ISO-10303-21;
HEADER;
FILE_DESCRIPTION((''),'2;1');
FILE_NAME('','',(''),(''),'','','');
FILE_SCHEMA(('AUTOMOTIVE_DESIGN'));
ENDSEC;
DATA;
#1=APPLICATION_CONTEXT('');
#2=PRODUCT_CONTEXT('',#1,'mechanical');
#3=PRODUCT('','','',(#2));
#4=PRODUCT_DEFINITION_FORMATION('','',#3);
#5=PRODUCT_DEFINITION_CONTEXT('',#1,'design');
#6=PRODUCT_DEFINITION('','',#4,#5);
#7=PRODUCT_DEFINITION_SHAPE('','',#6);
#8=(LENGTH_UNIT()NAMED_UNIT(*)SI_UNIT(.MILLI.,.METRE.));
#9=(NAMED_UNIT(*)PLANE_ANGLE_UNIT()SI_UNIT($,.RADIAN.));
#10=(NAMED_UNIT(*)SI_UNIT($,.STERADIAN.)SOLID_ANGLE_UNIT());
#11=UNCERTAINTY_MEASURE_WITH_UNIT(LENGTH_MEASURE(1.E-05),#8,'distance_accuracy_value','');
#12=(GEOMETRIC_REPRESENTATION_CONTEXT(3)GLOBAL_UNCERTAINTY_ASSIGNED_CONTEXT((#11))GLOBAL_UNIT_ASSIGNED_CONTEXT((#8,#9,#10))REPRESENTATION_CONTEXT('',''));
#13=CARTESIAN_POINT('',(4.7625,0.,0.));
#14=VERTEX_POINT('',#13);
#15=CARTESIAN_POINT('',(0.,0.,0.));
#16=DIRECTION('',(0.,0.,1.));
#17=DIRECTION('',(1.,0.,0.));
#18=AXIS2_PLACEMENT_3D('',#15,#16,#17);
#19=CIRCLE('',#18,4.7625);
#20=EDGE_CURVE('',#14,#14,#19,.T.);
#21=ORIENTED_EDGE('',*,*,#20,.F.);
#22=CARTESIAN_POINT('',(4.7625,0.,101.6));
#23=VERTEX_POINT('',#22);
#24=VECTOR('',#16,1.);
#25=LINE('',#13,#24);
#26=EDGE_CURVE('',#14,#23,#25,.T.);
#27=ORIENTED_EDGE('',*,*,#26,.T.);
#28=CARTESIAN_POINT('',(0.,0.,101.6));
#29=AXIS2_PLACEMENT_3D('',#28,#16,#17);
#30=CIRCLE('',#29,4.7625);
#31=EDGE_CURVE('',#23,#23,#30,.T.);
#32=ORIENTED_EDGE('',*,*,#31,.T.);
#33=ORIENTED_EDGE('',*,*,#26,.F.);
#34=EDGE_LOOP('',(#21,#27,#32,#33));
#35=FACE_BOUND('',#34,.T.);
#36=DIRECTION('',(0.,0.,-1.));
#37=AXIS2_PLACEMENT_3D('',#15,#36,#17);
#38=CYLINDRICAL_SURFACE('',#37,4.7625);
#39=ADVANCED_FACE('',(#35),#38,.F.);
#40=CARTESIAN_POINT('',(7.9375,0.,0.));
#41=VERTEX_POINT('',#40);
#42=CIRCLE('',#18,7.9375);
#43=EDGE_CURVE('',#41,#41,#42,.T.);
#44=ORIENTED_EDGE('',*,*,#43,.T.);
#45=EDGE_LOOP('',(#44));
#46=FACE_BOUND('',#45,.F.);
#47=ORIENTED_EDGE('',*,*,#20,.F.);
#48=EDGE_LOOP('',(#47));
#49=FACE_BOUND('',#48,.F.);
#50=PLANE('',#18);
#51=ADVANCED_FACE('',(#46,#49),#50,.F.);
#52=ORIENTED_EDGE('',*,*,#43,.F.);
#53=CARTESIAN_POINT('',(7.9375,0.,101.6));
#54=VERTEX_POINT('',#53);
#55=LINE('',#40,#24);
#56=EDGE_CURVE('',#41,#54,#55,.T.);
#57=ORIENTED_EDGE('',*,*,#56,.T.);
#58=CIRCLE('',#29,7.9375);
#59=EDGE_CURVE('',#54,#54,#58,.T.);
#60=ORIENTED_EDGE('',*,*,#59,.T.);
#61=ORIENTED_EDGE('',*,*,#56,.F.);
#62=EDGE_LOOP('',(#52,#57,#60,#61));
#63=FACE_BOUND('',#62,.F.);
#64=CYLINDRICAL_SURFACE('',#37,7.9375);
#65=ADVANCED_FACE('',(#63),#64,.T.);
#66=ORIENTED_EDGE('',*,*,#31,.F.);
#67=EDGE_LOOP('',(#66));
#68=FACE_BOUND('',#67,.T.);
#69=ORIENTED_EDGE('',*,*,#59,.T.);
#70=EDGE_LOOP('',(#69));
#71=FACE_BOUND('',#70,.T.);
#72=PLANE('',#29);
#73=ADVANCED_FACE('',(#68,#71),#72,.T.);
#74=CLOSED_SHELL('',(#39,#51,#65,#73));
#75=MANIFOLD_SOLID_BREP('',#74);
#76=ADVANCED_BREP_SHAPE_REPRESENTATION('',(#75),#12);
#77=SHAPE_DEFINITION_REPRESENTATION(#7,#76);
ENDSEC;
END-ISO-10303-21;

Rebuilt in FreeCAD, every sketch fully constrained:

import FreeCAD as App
import Part
import Sketcher
Q = App.Units.Quantity

doc = App.newDocument("Part")
params = doc.addObject("Spreadsheet::Sheet", "Params")
for row, (alias, value) in enumerate([
    ("sketch1_diameter", "0.625 in"),
    ("sketch1_diameter2", "0.375 in"),
    ("pad1_length", "4 in"),
], start=1):
    params.set(f"A{row}", alias)
    params.set(f"B{row}", "=" + value)
    params.setAlias(f"B{row}", alias)

body = doc.addObject("PartDesign::Body", "Body")

# Sketch on XY plane
sketch1 = body.newObject("Sketcher::SketchObject", "Sketch")
sketch1.AttachmentSupport = (doc.getObject("XY_Plane"), [""])
sketch1.MapMode = "FlatFace"
sketch1.addGeometry([
    Part.Circle(App.Vector(0, 0, 0), App.Vector(0, 0, 1), 7.9375),
    Part.Circle(App.Vector(0, 0, 0), App.Vector(0, 0, 1), 4.7625),
], False)
sketch1.addConstraint([
    Sketcher.Constraint("Coincident", 0, 3, -1, 1),
    Sketcher.Constraint("Coincident", 1, 3, -1, 1),
    Sketcher.Constraint("Diameter", 0, Q("0.625 in")),
    Sketcher.Constraint("Diameter", 1, Q("0.375 in")),
])
sketch1.setExpression("Constraints[2]", "Params.sketch1_diameter")
sketch1.setExpression("Constraints[3]", "Params.sketch1_diameter2")
pad1 = body.newObject("PartDesign::Pad", "Pad")
pad1.Profile = sketch1
pad1.setExpression("Length", "Params.pad1_length")

doc.recompute()
